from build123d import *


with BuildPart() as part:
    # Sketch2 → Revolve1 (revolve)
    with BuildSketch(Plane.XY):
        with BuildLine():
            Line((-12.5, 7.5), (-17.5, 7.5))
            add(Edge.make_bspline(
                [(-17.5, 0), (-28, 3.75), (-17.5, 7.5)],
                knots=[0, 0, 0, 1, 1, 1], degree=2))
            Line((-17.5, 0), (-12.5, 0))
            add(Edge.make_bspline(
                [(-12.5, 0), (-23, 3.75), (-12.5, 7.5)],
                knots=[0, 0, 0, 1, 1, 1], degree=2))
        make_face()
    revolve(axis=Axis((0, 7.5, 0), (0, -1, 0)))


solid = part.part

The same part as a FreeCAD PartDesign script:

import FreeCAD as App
import Part
import Sketcher
from FreeCAD import Vector

doc = App.newDocument("Part")
body = doc.addObject("PartDesign::Body", "Body")

# Sketch on XY plane
sketch1 = body.newObject("Sketcher::SketchObject", "Sketch")
sketch1.AttachmentSupport = (doc.getObject("XY_Plane"), [""])
sketch1.MapMode = "FlatFace"
sketch1.addGeometry([
    Part.LineSegment(Vector(-12.5, 7.5, 0), Vector(-17.5, 7.5, 0)),
    Part.BSplineCurve([Vector(-17.5, 0, 0), Vector(-28, 3.75, 0), Vector(-17.5, 7.5, 0)], [3, 3], [0, 1], False, 2, [1, 1, 1], False),
    Part.LineSegment(Vector(-17.5, 0, 0), Vector(-12.5, 0, 0)),
    Part.BSplineCurve([Vector(-12.5, 0, 0), Vector(-23, 3.75, 0), Vector(-12.5, 7.5, 0)], [3, 3], [0, 1], False, 2, [1, 1, 1], False),
], False)
sketch1.addConstraint([
    Sketcher.Constraint("Block", 1),
    Sketcher.Constraint("Block", 3),
    Sketcher.Constraint("Coincident", 0, 2, 1, 2),
    Sketcher.Constraint("Coincident", 1, 1, 2, 1),
    Sketcher.Constraint("Coincident", 2, 2, 3, 1),
    Sketcher.Constraint("Coincident", 3, 2, 0, 1),
])
revolution = body.newObject("PartDesign::Revolution", "Revolution")
revolution.Profile = sketch1
revolution.ReferenceAxis = (sketch1, ["V_Axis"])
revolution.Angle = 360

doc.recompute()
